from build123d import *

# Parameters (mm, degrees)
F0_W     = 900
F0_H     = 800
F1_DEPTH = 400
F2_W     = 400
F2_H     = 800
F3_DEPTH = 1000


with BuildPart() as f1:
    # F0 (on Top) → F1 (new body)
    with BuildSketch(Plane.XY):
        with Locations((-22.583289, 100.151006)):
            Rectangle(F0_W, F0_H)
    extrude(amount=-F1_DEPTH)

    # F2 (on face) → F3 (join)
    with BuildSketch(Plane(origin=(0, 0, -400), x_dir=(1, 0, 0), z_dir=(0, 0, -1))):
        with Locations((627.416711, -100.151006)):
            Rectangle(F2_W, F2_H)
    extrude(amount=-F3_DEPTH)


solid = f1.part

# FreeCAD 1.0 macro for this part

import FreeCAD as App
import Part
import Sketcher
from FreeCAD import Vector
Q = App.Units.Quantity

doc = App.newDocument("Part")
body = doc.addObject("PartDesign::Body", "Body")

# Sketch on XY plane
sketch1 = doc.addObject("Sketcher::SketchObject", "Sketch")
body.addObject(sketch1)
sketch1.AttachmentSupport = (doc.XY_Plane, [""])
sketch1.MapMode = "FlatFace"
sketch1.addGeometry(Part.LineSegment(Vector(-473, 500, 0), Vector(-473, -300, 0)), False)
sketch1.addGeometry(Part.LineSegment(Vector(-473, -300, 0), Vector(427, -300, 0)), False)
sketch1.addGeometry(Part.LineSegment(Vector(427, -300, 0), Vector(427, 500, 0)), False)
sketch1.addGeometry(Part.LineSegment(Vector(427, 500, 0), Vector(-473, 500, 0)), False)
sketch1.addConstraint(Sketcher.Constraint("Coincident", 0, 2, 1, 1))
sketch1.addConstraint(Sketcher.Constraint("Coincident", 1, 2, 2, 1))
sketch1.addConstraint(Sketcher.Constraint("Coincident", 2, 2, 3, 1))
sketch1.addConstraint(Sketcher.Constraint("Coincident", 3, 2, 0, 1))
sketch1.addConstraint(Sketcher.Constraint("Vertical", 0))
sketch1.addConstraint(Sketcher.Constraint("Horizontal", 1))
sketch1.addConstraint(Sketcher.Constraint("Vertical", 2))
sketch1.addConstraint(Sketcher.Constraint("Horizontal", 3))
sketch1.addConstraint(Sketcher.Constraint("DistanceX", 1, 1, 1, 2, Q("900 mm")))
sketch1.addConstraint(Sketcher.Constraint("DistanceY", 0, 2, 0, 1, Q("800 mm")))
sketch1.addConstraint(Sketcher.Constraint("DistanceX", 0, 2, -1, 1, Q("472.583289 mm")))
sketch1.addConstraint(Sketcher.Constraint("DistanceY", 0, 2, -1, 1, Q("299.848994 mm")))
pad1 = doc.addObject("PartDesign::Pad", "Pad")
body.addObject(pad1)
pad1.Profile = sketch1
pad1.Length = 400
pad1.Reversed = True

# Sketch on XY plane
sketch2 = doc.addObject("Sketcher::SketchObject", "Sketch001")
body.addObject(sketch2)
sketch2.AttachmentSupport = (doc.XY_Plane, [""])
sketch2.MapMode = "FlatFace"
sketch2.AttachmentOffset = App.Placement(Vector(0, 0, -400), App.Rotation())
sketch2.addGeometry(Part.LineSegment(Vector(427, -300, 0), Vector(427, 500, 0)), False)
sketch2.addGeometry(Part.LineSegment(Vector(427, 500, 0), Vector(827, 500, 0)), False)
sketch2.addGeometry(Part.LineSegment(Vector(827, 500, 0), Vector(827, -300, 0)), False)
sketch2.addGeometry(Part.LineSegment(Vector(827, -300, 0), Vector(427, -300, 0)), False)
sketch2.addConstraint(Sketcher.Constraint("Coincident", 0, 2, 1, 1))
sketch2.addConstraint(Sketcher.Constraint("Coincident", 1, 2, 2, 1))
sketch2.addConstraint(Sketcher.Constraint("Coincident", 2, 2, 3, 1))
sketch2.addConstraint(Sketcher.Constraint("Coincident", 3, 2, 0, 1))
sketch2.addConstraint(Sketcher.Constraint("Vertical", 0))
sketch2.addConstraint(Sketcher.Constraint("Horizontal", 1))
sketch2.addConstraint(Sketcher.Constraint("Vertical", 2))
sketch2.addConstraint(Sketcher.Constraint("Horizontal", 3))
sketch2.addConstraint(Sketcher.Constraint("DistanceX", 1, 1, 1, 2, Q("400 mm")))
sketch2.addConstraint(Sketcher.Constraint("DistanceY", 0, 1, 0, 2, Q("800 mm")))
sketch2.addConstraint(Sketcher.Constraint("DistanceX", -1, 1, 0, 2, Q("427.416711 mm")))
sketch2.addConstraint(Sketcher.Constraint("DistanceY", -1, 1, 0, 2, Q("500.151006 mm")))
pad2 = doc.addObject("PartDesign::Pad", "Pad001")
body.addObject(pad2)
pad2.Profile = sketch2
pad2.Length = 1000

doc.recompute()
